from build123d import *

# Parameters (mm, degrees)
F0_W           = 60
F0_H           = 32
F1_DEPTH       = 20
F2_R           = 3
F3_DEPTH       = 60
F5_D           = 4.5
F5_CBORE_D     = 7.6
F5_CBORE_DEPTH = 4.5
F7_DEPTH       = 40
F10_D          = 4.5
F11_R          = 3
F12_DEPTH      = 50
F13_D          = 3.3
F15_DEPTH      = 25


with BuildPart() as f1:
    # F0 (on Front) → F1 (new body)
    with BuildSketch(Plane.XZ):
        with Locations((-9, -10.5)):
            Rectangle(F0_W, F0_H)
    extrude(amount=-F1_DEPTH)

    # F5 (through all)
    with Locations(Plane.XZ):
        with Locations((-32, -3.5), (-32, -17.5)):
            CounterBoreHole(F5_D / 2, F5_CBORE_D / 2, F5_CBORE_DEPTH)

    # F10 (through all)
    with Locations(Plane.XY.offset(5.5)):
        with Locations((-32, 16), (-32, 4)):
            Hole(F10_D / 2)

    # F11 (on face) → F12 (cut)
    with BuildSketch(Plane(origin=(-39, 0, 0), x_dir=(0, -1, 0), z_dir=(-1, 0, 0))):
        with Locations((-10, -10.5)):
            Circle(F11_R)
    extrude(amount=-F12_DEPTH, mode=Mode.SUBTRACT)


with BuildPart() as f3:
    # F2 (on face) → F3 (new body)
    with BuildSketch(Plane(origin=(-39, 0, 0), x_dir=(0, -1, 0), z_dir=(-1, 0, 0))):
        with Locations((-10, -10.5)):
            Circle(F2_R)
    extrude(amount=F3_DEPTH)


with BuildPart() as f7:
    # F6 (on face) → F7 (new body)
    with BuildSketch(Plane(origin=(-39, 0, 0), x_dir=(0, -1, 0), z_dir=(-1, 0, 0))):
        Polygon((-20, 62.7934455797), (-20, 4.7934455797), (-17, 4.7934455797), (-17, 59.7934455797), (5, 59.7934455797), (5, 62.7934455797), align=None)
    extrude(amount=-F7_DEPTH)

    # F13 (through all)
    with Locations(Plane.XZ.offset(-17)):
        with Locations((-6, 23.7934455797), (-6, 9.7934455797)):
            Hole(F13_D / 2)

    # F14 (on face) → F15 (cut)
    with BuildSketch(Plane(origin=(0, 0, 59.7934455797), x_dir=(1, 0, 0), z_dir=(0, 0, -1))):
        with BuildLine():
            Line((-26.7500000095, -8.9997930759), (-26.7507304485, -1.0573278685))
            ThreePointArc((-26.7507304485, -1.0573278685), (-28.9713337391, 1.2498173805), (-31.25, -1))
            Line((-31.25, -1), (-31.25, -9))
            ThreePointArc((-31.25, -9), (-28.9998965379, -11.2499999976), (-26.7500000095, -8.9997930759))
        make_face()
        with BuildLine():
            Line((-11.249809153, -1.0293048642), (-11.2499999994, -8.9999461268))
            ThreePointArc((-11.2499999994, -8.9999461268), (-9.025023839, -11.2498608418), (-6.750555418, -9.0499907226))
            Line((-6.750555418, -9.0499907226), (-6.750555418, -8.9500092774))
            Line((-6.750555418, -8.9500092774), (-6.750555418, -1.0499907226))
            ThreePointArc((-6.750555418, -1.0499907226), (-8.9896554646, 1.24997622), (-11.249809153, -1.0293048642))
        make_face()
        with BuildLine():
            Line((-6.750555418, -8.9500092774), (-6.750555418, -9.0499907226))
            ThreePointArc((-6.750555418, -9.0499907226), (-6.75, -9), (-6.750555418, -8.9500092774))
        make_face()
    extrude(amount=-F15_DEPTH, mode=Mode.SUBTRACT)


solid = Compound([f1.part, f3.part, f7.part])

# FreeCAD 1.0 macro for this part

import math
import FreeCAD as App
import Part
import Sketcher

V = App.Vector


def add_polygon(sketch, points):
    """Adds a closed chain of lines whose ends are joined by coincident constraints."""
    first, n = sketch.GeometryCount, len(points)
    for a, b in zip(points, points[1:] + points[:1]):
        sketch.addGeometry(Part.LineSegment(App.Vector(*a, 0), App.Vector(*b, 0)), False)
    for i in range(n):
        sketch.addConstraint(Sketcher.Constraint("Coincident", first + i, 2, first + (i + 1) % n, 1))

doc = App.newDocument("Part")
body = doc.addObject("PartDesign::Body", "Body")

# Sketch on XZ plane
sketch1 = doc.addObject("Sketcher::SketchObject", "Sketch")
body.addObject(sketch1)
sketch1.AttachmentSupport = (doc.XZ_Plane, [""])
sketch1.MapMode = "FlatFace"
add_polygon(sketch1, [(-39, 5.5), (-39, -26.5), (21, -26.5), (21, 5.5)])  # lines 0-3
sketch1.addConstraint([
    Sketcher.Constraint("Vertical", 0),
    Sketcher.Constraint("Horizontal", 1),
    Sketcher.Constraint("Vertical", 2),
    Sketcher.Constraint("Horizontal", 3),
    Sketcher.Constraint("DistanceX", 1, 1, 1, 2, 60.0),
    Sketcher.Constraint("DistanceY", 0, 2, 0, 1, 32.0),
    Sketcher.Constraint("DistanceX", 0, 2, -1, 1, 39.0),
    Sketcher.Constraint("DistanceY", 0, 2, -1, 1, 26.5),
])
pad1 = doc.addObject("PartDesign::Pad", "Pad")
body.addObject(pad1)
pad1.Profile = sketch1
pad1.Length = 20
pad1.Reversed = True

# Sketch on XZ plane
sketch2 = doc.addObject("Sketcher::SketchObject", "Sketch001")
body.addObject(sketch2)
sketch2.AttachmentSupport = (doc.XZ_Plane, [""])
sketch2.MapMode = "FlatFace"
sketch2.addGeometry([
    Part.Circle(V(-32, -3.5, 0), V(0, 0, 1), 2.25),
    Part.Circle(V(-32, -17.5, 0), V(0, 0, 1), 2.25),
], False)
sketch2.addConstraint([
    Sketcher.Constraint("Equal", 0, 1),
    Sketcher.Constraint("Vertical", 0, 3, 1, 3),
    Sketcher.Constraint("Diameter", 0, 4.5),
    Sketcher.Constraint("DistanceX", 0, 3, -1, 1, 32.0),
    Sketcher.Constraint("DistanceY", 1, 3, 0, 3, 14.0),
    Sketcher.Constraint("DistanceY", 0, 3, -1, 1, 3.5),
])
doc.recompute()
hole = doc.addObject("PartDesign::Hole", "Hole")
body.addObject(hole)
hole.Profile = sketch2
hole.ThreadType = "None"
hole.Diameter = 4.5
hole.DepthType = "ThroughAll"
hole.HoleCutType = "Counterbore"
hole.HoleCutDiameter = 7.6
hole.HoleCutDepth = 4.5

# Sketch on XY plane
sketch3 = doc.addObject("Sketcher::SketchObject", "Sketch002")
body.addObject(sketch3)
sketch3.AttachmentSupport = (doc.XY_Plane, [""])
sketch3.MapMode = "FlatFace"
sketch3.AttachmentOffset = App.Placement(V(0, 0, 5.5), App.Rotation())
sketch3.addGeometry([
    Part.Circle(V(-32, 16, 0), V(0, 0, 1), 2.25),
    Part.Circle(V(-32, 4, 0), V(0, 0, 1), 2.25),
], False)
sketch3.addConstraint([
    Sketcher.Constraint("Equal", 0, 1),
    Sketcher.Constraint("Vertical", 0, 3, 1, 3),
    Sketcher.Constraint("Diameter", 0, 4.5),
    Sketcher.Constraint("DistanceX", 0, 3, -1, 1, 32.0),
    Sketcher.Constraint("DistanceY", -1, 1, 0, 3, 16.0),
    Sketcher.Constraint("DistanceY", -1, 1, 1, 3, 4.0),
])
doc.recompute()
hole2 = doc.addObject("PartDesign::Hole", "Hole001")
body.addObject(hole2)
hole2.Profile = sketch3
hole2.ThreadType = "None"
hole2.Diameter = 4.5
hole2.DepthType = "ThroughAll"

# Sketch on YZ plane
sketch4 = doc.addObject("Sketcher::SketchObject", "Sketch003")
body.addObject(sketch4)
sketch4.AttachmentSupport = (doc.YZ_Plane, [""])
sketch4.MapMode = "FlatFace"
sketch4.AttachmentOffset = App.Placement(V(0, 0, -39), App.Rotation())
sketch4.addGeometry(Part.Circle(V(10, -10.5, 0), V(0, 0, 1), 3), False)
sketch4.addConstraint([
    Sketcher.Constraint("Diameter", 0, 6.0),
    Sketcher.Constraint("DistanceX", -1, 1, 0, 3, 10.0),
    Sketcher.Constraint("DistanceY", 0, 3, -1, 1, 10.5),
])
pocket1 = doc.addObject("PartDesign::Pocket", "Pocket")
body.addObject(pocket1)
pocket1.Profile = sketch4
pocket1.Length = 50
pocket1.Reversed = True
body2 = doc.addObject("PartDesign::Body", "Body001")

# Sketch on YZ plane
sketch5 = doc.addObject("Sketcher::SketchObject", "Sketch004")
body2.addObject(sketch5)
sketch5.AttachmentSupport = (doc.getObject("YZ_Plane001"), [""])
sketch5.MapMode = "FlatFace"
sketch5.AttachmentOffset = App.Placement(V(0, 0, -39), App.Rotation())
sketch5.addGeometry(Part.Circle(V(10, -10.5, 0), V(0, 0, 1), 3), False)
sketch5.addConstraint([
    Sketcher.Constraint("Diameter", 0, 6.0),
    Sketcher.Constraint("DistanceX", -1, 1, 0, 3, 10.0),
    Sketcher.Constraint("DistanceY", 0, 3, -1, 1, 10.5),
])
pad2 = doc.addObject("PartDesign::Pad", "Pad001")
body2.addObject(pad2)
pad2.Profile = sketch5
pad2.Length = 60
pad2.Reversed = True
body3 = doc.addObject("PartDesign::Body", "Body002")

# Sketch on YZ plane
sketch6 = doc.addObject("Sketcher::SketchObject", "Sketch005")
body3.addObject(sketch6)
sketch6.AttachmentSupport = (doc.getObject("YZ_Plane002"), [""])
sketch6.MapMode = "FlatFace"
sketch6.AttachmentOffset = App.Placement(V(0, 0, -39), App.Rotation())
add_polygon(sketch6, [(20, 62.793446), (20, 4.793446), (17, 4.793446), (17, 59.793446), (-5, 59.793446), (-5, 62.793446)])  # lines 0-5
sketch6.addConstraint([
    Sketcher.Constraint("Vertical", 0),
    Sketcher.Constraint("Horizontal", 1),
    Sketcher.Constraint("Vertical", 2),
    Sketcher.Constraint("Horizontal", 3),
    Sketcher.Constraint("Vertical", 4),
    Sketcher.Constraint("Horizontal", 5),
    Sketcher.Constraint("Equal", 1, 4),
    Sketcher.Constraint("DistanceX", 1, 2, 1, 1, 3.0),
    Sketcher.Constraint("DistanceX", 3, 2, 3, 1, 22.0),
    Sketcher.Constraint("DistanceY", 0, 2, 0, 1, 58.0),
    Sketcher.Constraint("DistanceX", -1, 1, 0, 2, 20.0),
    Sketcher.Constraint("DistanceY", -1, 1, 0, 2, 4.793446),
])
pad3 = doc.addObject("PartDesign::Pad", "Pad002")
body3.addObject(pad3)
pad3.Profile = sketch6
pad3.Length = 40

# Sketch on XZ plane
sketch7 = doc.addObject("Sketcher::SketchObject", "Sketch006")
body3.addObject(sketch7)
sketch7.AttachmentSupport = (doc.getObject("XZ_Plane002"), [""])
sketch7.MapMode = "FlatFace"
sketch7.AttachmentOffset = App.Placement(V(0, 0, -17), App.Rotation())
sketch7.addGeometry([
    Part.Circle(V(-6, 23.793446, 0), V(0, 0, 1), 1.65),
    Part.Circle(V(-6, 9.793446, 0), V(0, 0, 1), 1.65),
], False)
sketch7.addConstraint([
    Sketcher.Constraint("Equal", 0, 1),
    Sketcher.Constraint("Vertical", 0, 3, 1, 3),
    Sketcher.Constraint("Diameter", 0, 3.3),
    Sketcher.Constraint("DistanceX", 0, 3, -1, 1, 6.0),
    Sketcher.Constraint("DistanceY", 1, 3, 0, 3, 14.0),
    Sketcher.Constraint("DistanceY", -1, 1, 0, 3, 23.793446),
])
doc.recompute()
hole3 = doc.addObject("PartDesign::Hole", "Hole002")
body3.addObject(hole3)
hole3.Profile = sketch7
hole3.ThreadType = "None"
hole3.Diameter = 3.3
hole3.DepthType = "ThroughAll"

# Sketch on XY plane
sketch8 = doc.addObject("Sketcher::SketchObject", "Sketch007")
body3.addObject(sketch8)
sketch8.AttachmentSupport = (doc.getObject("XY_Plane002"), [""])
sketch8.MapMode = "FlatFace"
sketch8.AttachmentOffset = App.Placement(V(0, 0, 59.793446), App.Rotation())
sketch8.addGeometry([
    Part.LineSegment(V(-26.75, 8.999793, 0), V(-26.75073, 1.057328, 0)),  # 0
    Part.ArcOfCircle(Part.Circle(V(-29, 1, 0), V(0, 0, 1), 2.25), math.radians(180), math.radians(361.46)),  # 1
    Part.LineSegment(V(-31.25, 1, 0), V(-31.25, 9, 0)),  # 2
    Part.ArcOfCircle(Part.Circle(V(-29, 9, 0), V(0, 0, 1), 2.25), math.radians(-0.005269), math.radians(180)),  # 3
    Part.LineSegment(V(-11.249809, 1.029305, 0), V(-11.25, 8.999946, 0)),  # 4
    Part.ArcOfCircle(Part.Circle(V(-9, 9, 0), V(0, 0, 1), 2.25), math.radians(1.273108), math.radians(180.001372)),  # 5
    Part.ArcOfCircle(Part.Circle(V(-9, 9, 0), V(0, 0, 1), 2.25), math.radians(-1.273108), math.radians(1.273108)),  # 6
    Part.LineSegment(V(-6.750555, 8.950009, 0), V(-6.750555, 1.049991, 0)),  # 7
    Part.ArcOfCircle(Part.Circle(V(-9, 1, 0), V(0, 0, 1), 2.25), math.radians(179.253737), math.radians(361.273108)),  # 8
], False)
sketch8.addConstraint([
    Sketcher.Constraint("Coincident", 0, 2, 1, 2),
    Sketcher.Constraint("Tangent", 1, 1, 2, 1),
    Sketcher.Constraint("Tangent", 2, 2, 3, 2),
    Sketcher.Constraint("Tangent", 3, 1, 0, 1),
    Sketcher.Constraint("Tangent", 4, 2, 5, 2),
    Sketcher.Constraint("Tangent", 5, 1, 6, 2),
    Sketcher.Constraint("Coincident", 6, 1, 7, 1),
    Sketcher.Constraint("Coincident", 7, 2, 8, 2),
    Sketcher.Constraint("Coincident", 8, 1, 4, 1),
    Sketcher.Constraint("Vertical", 2),
    Sketcher.Constraint("Vertical", 7),
    Sketcher.Constraint("Equal", 1, 3),
    Sketcher.Constraint("Equal", 3, 5),
    Sketcher.Constraint("Equal", 5, 6),
    Sketcher.Constraint("Equal", 6, 8),
    Sketcher.Constraint("Horizontal", 3, 3, 5, 3),
    Sketcher.Constraint("Horizontal", 1, 3, 8, 3),
    Sketcher.Constraint("Vertical", 6, 3, 8, 3),
    Sketcher.Constraint("Vertical", 5, 1, 6, 1),
    Sketcher.Constraint("DistanceY", 2, 1, 2, 2, 8.0),
    Sketcher.Constraint("Radius", 1, 2.25),
    Sketcher.Constraint("DistanceX", 1, 3, -1, 1, 29.0),
    Sketcher.Constraint("DistanceY", -1, 1, 1, 3, 1.0),
    Sketcher.Constraint("DistanceX", 5, 3, -1, 1, 9.0),
    Sketcher.Constraint("DistanceY", 7, 2, 7, 1, 7.900019),
    Sketcher.Constraint("Distance", 4, 7.970641),
    Sketcher.Constraint("DistanceX", 0, 2, -1, 1, 26.75073),
])
pocket2 = doc.addObject("PartDesign::Pocket", "Pocket001")
body3.addObject(pocket2)
pocket2.Profile = sketch8
pocket2.Length = 25
pocket2.Reversed = True

doc.recompute()
